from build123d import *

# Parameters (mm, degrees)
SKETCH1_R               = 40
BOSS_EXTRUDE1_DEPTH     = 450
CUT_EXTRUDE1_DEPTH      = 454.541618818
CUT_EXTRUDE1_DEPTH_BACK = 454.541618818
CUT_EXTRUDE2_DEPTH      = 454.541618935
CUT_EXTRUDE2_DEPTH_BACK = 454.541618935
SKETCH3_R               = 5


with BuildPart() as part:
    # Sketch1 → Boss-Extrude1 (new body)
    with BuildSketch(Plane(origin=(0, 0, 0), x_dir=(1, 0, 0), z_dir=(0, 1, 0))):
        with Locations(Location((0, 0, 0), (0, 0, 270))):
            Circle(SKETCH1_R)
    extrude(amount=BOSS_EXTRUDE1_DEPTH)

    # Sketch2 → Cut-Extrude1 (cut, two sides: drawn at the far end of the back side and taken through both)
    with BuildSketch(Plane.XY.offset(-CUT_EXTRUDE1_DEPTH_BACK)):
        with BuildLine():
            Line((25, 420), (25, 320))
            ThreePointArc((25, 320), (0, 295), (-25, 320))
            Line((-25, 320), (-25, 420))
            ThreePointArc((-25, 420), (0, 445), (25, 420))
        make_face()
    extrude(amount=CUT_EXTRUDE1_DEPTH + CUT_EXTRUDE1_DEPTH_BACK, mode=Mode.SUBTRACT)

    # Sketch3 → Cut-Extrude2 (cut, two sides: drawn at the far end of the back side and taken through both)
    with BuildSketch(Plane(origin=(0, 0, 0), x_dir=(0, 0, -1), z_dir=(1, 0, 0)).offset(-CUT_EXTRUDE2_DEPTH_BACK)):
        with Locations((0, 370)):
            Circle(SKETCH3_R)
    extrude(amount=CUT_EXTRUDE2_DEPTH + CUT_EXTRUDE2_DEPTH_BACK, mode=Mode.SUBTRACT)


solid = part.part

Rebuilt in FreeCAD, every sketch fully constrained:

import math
import FreeCAD as App
import Part
import Sketcher
from FreeCAD import Vector
Q = App.Units.Quantity

doc = App.newDocument("Part")
body = doc.addObject("PartDesign::Body", "Body")

sketch1 = doc.addObject("Sketcher::SketchObject", "Sketch")
body.addObject(sketch1)
sketch1.AttachmentSupport = (doc.XZ_Plane, [""])
sketch1.MapMode = "FlatFace"
sketch1.addGeometry(Part.Circle(Vector(0, 0, 0), Vector(0, 0, 1), 40), False)
sketch1.addConstraint(Sketcher.Constraint("Coincident", 0, 3, -1, 1))
sketch1.addConstraint(Sketcher.Constraint("Diameter", 0, Q("80 mm")))
pad1 = doc.addObject("PartDesign::Pad", "Pad")
body.addObject(pad1)
pad1.Profile = sketch1
pad1.Length = 450
pad1.Reversed = True

sketch2 = doc.addObject("Sketcher::SketchObject", "Sketch001")
body.addObject(sketch2)
sketch2.AttachmentSupport = (doc.XY_Plane, [""])
sketch2.MapMode = "FlatFace"
sketch2.addGeometry(Part.LineSegment(Vector(25, 320, 0), Vector(25, 420, 0)), False)
sketch2.addGeometry(Part.ArcOfCircle(Part.Circle(Vector(0, 420, 0), Vector(0, 0, 1), 25), math.radians(0), math.radians(180)), False)
sketch2.addGeometry(Part.LineSegment(Vector(-25, 420, 0), Vector(-25, 320, 0)), False)
sketch2.addGeometry(Part.ArcOfCircle(Part.Circle(Vector(0, 320, 0), Vector(0, 0, 1), 25), math.radians(180), math.radians(360)), False)
sketch2.addConstraint(Sketcher.Constraint("Tangent", 0, 2, 1, 1))
sketch2.addConstraint(Sketcher.Constraint("Tangent", 1, 2, 2, 1))
sketch2.addConstraint(Sketcher.Constraint("Tangent", 2, 2, 3, 1))
sketch2.addConstraint(Sketcher.Constraint("Tangent", 3, 2, 0, 1))
sketch2.addConstraint(Sketcher.Constraint("Vertical", 0))
sketch2.addConstraint(Sketcher.Constraint("Vertical", 2))
sketch2.addConstraint(Sketcher.Constraint("PointOnObject", 1, 3, -2))
sketch2.addConstraint(Sketcher.Constraint("Radius", 1, Q("25 mm")))
sketch2.addConstraint(Sketcher.Constraint("DistanceY", 0, 1, 0, 2, Q("100 mm")))
sketch2.addConstraint(Sketcher.Constraint("DistanceY", -1, 1, 1, 3, Q("420 mm")))
pocket1 = doc.addObject("PartDesign::Pocket", "Pocket")
body.addObject(pocket1)
pocket1.Profile = sketch2
pocket1.Type = "ThroughAll"
pocket1.Midplane = True

sketch3 = doc.addObject("Sketcher::SketchObject", "Sketch002")
body.addObject(sketch3)
sketch3.AttachmentSupport = (doc.YZ_Plane, [""])
sketch3.MapMode = "FlatFace"
sketch3.addGeometry(Part.Circle(Vector(370, 0, 0), Vector(0, 0, 1), 5), False)
sketch3.addConstraint(Sketcher.Constraint("PointOnObject", 0, 3, -1))
sketch3.addConstraint(Sketcher.Constraint("Diameter", 0, Q("10 mm")))
sketch3.addConstraint(Sketcher.Constraint("DistanceX", -1, 1, 0, 3, Q("370 mm")))
pocket2 = doc.addObject("PartDesign::Pocket", "Pocket001")
body.addObject(pocket2)
pocket2.Profile = sketch3
pocket2.Type = "ThroughAll"
pocket2.Midplane = True

doc.recompute()
